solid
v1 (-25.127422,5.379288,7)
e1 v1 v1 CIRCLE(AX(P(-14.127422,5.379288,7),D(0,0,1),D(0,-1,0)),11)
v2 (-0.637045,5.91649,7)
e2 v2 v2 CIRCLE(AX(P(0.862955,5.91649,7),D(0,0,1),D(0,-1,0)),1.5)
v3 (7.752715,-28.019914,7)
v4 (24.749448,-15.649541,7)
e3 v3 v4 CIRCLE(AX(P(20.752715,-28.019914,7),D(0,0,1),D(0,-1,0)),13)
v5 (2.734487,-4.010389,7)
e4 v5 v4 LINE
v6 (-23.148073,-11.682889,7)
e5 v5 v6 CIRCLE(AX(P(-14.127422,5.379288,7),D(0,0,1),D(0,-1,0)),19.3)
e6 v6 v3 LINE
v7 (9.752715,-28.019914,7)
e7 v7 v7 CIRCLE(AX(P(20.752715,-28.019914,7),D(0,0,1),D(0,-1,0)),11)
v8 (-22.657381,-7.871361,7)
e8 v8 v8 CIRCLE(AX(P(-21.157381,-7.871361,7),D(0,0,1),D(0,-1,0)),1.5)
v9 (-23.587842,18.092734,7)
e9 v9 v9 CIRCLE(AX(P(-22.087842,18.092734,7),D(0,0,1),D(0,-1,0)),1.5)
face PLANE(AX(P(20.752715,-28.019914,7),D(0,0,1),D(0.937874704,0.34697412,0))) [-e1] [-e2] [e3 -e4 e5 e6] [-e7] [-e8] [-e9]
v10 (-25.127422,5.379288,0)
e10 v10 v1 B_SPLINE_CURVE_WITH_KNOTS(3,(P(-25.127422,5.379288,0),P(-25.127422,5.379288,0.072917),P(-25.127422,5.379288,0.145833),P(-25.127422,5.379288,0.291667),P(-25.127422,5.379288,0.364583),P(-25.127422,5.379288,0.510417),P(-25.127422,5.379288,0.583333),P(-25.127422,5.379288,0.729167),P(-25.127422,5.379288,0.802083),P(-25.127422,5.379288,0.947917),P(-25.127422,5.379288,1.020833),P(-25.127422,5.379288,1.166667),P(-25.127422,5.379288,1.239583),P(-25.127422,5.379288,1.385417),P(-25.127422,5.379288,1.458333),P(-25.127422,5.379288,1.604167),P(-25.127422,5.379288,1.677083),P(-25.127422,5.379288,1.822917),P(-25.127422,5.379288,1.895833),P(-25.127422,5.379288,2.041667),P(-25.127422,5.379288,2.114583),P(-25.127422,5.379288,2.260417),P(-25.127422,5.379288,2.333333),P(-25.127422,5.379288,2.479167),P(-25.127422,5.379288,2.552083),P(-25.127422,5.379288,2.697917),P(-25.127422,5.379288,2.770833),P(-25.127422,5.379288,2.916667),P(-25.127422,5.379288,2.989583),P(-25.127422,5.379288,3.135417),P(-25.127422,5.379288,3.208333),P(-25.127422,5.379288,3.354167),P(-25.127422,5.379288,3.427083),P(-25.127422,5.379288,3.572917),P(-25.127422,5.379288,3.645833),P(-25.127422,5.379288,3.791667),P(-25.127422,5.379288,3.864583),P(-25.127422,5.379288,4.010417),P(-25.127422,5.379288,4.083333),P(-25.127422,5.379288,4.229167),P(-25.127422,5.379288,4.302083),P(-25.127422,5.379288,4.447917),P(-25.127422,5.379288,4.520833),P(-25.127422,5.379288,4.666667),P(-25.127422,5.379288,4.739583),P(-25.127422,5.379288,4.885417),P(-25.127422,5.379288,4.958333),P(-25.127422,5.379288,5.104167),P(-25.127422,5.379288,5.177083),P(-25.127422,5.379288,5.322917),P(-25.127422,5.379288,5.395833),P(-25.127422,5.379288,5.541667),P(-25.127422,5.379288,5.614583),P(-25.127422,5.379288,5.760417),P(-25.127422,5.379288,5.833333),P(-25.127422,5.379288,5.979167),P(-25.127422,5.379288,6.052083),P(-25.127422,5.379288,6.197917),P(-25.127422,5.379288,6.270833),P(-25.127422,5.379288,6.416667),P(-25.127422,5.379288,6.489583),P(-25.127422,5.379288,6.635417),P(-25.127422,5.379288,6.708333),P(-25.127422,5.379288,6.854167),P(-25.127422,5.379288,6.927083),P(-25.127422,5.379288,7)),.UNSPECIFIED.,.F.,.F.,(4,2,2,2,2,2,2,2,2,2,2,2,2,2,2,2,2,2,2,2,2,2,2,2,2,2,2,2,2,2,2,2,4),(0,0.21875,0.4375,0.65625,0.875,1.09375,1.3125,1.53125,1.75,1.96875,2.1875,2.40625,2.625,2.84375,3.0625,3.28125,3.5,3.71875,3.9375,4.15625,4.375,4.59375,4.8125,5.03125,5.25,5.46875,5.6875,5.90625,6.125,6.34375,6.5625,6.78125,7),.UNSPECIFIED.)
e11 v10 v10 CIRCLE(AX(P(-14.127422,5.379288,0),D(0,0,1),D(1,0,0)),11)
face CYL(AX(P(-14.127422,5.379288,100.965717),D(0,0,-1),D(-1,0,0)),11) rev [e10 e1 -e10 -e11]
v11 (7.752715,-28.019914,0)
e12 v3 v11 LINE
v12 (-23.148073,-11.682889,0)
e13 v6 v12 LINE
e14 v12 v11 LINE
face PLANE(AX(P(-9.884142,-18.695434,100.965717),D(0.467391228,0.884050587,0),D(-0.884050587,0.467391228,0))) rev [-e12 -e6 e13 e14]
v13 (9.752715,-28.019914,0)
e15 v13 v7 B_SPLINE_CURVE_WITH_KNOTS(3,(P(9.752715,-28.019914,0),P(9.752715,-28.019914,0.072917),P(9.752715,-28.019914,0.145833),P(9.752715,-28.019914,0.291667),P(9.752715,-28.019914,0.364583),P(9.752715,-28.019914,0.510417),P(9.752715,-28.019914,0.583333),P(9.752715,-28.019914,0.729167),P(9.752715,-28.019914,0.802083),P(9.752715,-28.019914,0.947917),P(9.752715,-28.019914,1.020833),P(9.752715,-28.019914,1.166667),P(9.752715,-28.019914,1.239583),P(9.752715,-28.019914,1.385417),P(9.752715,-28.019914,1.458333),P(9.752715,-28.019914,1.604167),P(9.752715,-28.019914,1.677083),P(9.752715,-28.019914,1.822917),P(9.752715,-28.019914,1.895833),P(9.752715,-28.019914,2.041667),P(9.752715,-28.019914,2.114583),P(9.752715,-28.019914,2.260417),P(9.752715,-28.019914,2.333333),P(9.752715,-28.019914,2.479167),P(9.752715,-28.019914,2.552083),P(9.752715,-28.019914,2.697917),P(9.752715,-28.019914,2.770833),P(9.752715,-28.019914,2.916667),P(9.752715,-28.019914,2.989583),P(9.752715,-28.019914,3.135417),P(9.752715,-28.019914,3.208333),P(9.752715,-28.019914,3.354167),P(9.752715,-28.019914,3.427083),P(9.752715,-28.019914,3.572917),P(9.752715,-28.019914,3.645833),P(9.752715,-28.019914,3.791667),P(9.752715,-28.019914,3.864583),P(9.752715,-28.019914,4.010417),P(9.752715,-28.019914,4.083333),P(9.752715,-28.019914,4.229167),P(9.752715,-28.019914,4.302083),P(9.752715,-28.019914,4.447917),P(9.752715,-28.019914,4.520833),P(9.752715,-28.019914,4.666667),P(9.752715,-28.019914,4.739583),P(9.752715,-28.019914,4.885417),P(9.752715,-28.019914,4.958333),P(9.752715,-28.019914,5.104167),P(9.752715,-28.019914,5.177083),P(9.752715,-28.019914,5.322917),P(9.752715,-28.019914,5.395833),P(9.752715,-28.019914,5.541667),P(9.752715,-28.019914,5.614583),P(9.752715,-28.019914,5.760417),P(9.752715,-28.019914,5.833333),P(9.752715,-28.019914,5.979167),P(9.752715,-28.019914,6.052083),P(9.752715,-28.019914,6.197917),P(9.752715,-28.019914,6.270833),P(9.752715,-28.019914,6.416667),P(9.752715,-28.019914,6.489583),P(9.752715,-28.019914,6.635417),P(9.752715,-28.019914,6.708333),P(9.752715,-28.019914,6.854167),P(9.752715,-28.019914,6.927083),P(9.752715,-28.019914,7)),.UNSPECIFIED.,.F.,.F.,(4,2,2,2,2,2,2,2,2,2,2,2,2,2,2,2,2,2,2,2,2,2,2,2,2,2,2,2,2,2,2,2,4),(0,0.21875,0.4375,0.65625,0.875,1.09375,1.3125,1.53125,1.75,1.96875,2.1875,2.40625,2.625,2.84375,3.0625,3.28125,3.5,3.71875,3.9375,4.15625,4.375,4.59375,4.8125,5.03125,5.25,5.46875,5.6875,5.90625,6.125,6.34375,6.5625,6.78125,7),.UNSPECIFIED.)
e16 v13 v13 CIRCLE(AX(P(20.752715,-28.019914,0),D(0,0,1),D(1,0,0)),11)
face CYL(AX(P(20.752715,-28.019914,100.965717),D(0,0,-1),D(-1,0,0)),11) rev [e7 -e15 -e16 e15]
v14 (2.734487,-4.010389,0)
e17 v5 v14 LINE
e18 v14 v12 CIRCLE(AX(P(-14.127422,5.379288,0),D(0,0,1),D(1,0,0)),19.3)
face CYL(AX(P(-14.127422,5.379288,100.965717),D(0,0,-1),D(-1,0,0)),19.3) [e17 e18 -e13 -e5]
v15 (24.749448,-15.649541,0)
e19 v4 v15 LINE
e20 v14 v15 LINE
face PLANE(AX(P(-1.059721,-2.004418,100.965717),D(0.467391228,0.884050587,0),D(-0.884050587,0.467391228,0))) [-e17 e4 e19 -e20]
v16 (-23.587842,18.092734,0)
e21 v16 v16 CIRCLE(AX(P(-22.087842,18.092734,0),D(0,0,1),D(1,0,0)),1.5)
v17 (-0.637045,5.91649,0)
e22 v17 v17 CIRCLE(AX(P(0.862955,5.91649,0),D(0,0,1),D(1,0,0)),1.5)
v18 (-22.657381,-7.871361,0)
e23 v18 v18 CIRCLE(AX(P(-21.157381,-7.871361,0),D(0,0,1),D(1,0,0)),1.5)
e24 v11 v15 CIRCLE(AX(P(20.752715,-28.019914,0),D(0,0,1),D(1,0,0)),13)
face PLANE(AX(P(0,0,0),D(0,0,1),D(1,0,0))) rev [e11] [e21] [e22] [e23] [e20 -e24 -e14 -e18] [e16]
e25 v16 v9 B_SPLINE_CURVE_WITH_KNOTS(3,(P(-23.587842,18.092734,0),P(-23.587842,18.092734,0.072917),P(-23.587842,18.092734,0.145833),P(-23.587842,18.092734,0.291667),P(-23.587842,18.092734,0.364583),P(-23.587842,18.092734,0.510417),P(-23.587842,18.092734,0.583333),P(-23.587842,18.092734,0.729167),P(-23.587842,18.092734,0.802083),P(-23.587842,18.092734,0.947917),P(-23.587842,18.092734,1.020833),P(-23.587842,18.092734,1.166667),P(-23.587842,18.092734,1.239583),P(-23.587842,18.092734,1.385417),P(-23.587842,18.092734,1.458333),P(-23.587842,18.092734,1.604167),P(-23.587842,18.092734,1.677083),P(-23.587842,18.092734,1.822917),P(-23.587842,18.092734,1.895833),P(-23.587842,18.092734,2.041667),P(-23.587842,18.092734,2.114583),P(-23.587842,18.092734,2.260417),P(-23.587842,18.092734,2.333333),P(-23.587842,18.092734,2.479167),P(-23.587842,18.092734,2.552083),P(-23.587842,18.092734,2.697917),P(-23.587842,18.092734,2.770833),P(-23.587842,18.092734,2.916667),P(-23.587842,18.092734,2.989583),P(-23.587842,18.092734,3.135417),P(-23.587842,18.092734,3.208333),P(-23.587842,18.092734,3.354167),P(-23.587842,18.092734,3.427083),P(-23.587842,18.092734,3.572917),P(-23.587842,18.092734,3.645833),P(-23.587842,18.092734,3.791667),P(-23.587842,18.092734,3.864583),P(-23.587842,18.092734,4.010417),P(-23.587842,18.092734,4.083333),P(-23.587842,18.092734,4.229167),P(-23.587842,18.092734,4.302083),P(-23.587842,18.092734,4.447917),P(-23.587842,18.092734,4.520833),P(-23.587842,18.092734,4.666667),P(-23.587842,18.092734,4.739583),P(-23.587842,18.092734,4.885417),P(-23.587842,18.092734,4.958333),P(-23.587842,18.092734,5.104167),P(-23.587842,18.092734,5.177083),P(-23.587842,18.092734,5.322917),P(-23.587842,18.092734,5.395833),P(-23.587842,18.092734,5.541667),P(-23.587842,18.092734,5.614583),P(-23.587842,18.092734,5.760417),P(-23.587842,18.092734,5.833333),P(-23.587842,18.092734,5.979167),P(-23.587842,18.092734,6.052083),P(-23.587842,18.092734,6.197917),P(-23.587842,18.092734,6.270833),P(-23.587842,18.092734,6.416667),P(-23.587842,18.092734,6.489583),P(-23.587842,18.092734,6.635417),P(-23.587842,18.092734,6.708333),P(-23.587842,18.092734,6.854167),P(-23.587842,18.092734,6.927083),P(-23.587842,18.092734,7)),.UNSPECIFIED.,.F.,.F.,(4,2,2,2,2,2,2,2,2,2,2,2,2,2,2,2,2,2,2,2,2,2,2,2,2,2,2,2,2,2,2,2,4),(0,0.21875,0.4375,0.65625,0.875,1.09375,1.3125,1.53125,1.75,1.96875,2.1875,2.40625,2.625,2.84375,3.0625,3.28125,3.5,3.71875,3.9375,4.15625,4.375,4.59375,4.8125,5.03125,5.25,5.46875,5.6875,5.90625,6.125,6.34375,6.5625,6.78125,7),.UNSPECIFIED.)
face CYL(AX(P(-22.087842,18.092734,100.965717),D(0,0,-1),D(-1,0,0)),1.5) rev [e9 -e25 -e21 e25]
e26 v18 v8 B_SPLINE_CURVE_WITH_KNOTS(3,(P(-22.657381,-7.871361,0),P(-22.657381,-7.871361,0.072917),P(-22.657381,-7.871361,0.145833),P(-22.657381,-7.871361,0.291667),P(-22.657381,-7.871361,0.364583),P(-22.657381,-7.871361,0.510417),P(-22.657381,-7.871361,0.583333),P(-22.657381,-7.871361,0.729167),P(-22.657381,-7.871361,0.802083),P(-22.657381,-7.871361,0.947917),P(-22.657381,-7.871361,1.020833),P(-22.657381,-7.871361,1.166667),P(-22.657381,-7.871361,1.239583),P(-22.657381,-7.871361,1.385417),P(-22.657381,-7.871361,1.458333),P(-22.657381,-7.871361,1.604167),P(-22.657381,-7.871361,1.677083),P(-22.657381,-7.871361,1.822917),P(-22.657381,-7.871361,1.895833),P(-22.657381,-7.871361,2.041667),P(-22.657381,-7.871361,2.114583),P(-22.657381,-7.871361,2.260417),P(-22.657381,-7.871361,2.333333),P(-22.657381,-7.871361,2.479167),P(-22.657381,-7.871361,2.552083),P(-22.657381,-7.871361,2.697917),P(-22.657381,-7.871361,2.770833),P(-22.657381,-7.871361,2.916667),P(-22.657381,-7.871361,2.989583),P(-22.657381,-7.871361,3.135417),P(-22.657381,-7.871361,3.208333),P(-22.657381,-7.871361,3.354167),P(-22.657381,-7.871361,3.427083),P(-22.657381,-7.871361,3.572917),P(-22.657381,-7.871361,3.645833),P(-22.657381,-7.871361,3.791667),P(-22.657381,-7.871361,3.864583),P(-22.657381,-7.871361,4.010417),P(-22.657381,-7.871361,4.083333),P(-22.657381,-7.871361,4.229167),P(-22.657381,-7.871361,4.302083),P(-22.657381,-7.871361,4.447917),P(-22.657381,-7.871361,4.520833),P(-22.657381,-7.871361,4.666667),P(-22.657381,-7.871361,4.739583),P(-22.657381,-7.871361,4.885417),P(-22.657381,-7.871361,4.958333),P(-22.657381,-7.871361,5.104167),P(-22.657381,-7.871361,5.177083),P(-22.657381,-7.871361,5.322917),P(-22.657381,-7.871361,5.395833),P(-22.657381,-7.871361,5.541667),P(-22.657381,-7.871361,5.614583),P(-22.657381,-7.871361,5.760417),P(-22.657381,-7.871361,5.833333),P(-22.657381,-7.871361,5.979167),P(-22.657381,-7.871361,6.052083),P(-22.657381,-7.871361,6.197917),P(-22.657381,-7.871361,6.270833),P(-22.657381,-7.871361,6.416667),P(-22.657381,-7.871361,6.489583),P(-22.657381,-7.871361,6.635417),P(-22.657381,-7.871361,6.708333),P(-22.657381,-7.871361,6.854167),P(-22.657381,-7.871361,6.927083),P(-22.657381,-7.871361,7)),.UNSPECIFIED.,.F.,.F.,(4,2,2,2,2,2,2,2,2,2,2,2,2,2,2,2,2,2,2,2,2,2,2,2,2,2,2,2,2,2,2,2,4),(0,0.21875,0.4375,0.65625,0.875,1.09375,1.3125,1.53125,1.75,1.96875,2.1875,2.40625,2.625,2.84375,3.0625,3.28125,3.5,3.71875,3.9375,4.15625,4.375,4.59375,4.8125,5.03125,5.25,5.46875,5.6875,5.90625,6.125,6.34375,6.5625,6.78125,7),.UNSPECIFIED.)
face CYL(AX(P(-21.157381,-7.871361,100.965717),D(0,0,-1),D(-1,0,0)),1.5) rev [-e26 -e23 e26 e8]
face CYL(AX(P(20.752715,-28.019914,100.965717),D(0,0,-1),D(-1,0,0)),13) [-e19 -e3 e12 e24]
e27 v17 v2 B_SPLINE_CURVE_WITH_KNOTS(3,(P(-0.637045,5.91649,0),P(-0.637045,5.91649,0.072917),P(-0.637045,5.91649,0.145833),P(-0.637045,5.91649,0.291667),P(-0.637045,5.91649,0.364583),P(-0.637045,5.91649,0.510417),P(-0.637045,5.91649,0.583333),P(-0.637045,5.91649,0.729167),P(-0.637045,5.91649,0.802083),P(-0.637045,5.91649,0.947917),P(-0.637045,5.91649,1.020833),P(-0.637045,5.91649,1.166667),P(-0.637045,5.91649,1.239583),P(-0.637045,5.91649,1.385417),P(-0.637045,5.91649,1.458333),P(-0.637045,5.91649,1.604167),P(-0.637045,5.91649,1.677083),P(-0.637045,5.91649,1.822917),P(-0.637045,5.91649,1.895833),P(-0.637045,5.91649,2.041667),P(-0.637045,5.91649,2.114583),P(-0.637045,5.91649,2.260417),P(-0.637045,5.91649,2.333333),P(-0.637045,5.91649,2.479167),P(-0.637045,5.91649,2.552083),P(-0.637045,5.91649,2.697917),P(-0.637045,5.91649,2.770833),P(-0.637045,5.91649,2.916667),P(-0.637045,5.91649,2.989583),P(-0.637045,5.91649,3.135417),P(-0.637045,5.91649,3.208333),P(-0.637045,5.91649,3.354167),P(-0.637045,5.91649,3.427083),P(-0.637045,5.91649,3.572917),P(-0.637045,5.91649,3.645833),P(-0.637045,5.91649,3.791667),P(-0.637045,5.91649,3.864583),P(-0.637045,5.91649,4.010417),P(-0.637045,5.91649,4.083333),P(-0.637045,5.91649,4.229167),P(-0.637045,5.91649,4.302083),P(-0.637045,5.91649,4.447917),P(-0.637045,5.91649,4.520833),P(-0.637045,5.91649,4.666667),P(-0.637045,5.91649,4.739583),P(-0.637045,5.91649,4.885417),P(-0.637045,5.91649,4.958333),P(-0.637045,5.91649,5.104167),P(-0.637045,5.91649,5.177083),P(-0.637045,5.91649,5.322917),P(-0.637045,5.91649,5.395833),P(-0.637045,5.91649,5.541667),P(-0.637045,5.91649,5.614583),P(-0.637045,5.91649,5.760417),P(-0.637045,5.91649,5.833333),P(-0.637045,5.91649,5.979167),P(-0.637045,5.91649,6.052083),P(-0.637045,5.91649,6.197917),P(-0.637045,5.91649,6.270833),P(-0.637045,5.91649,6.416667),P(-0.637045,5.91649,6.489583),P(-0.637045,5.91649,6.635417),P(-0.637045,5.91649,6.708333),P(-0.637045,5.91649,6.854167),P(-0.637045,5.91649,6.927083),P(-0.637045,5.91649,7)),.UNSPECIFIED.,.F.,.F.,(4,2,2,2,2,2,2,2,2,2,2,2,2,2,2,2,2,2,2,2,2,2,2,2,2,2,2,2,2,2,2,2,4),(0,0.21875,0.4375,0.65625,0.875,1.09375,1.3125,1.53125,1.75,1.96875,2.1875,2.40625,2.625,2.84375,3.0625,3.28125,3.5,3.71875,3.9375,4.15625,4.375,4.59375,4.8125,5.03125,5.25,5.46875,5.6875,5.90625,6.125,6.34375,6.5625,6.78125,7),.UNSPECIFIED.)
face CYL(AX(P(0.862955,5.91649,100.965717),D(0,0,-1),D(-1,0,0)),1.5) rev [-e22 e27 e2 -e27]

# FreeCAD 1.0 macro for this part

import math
import FreeCAD as App
import Part
import Sketcher

doc = App.newDocument("Part")
body = doc.addObject("PartDesign::Body", "Body")

sketch1 = body.newObject("Sketcher::SketchObject", "Sketch")
sketch1.AttachmentSupport = (doc.getObject("XY_Plane"), [""])
sketch1.MapMode = "FlatFace"
sketch1.addGeometry(Part.LineSegment(App.Vector(24.7, -15.6, 0), App.Vector(2.7, -4, 0)), False)
sketch1.addGeometry(Part.ArcOfCircle(Part.Circle(App.Vector(-14.1, 5.4, 0), App.Vector(0, 0, 1), 19.3), math.radians(-29), math.radians(242)), False)
sketch1.addGeometry(Part.LineSegment(App.Vector(-23.1, -11.7, 0), App.Vector(7.8, -28, 0)), False)
sketch1.addGeometry(Part.ArcOfCircle(Part.Circle(App.Vector(20.8, -28, 0), App.Vector(0, 0, 1), 13), math.radians(180), math.radians(432)), False)
sketch1.addGeometry(Part.Circle(App.Vector(20.8, -28, 0), App.Vector(0, 0, 1), 11), False)
sketch1.addGeometry(Part.Circle(App.Vector(-21.2, -7.9, 0), App.Vector(0, 0, 1), 1.5), False)
sketch1.addGeometry(Part.Circle(App.Vector(-14.1, 5.4, 0), App.Vector(0, 0, 1), 11), False)
sketch1.addGeometry(Part.Circle(App.Vector(-22.1, 18.1, 0), App.Vector(0, 0, 1), 1.5), False)
sketch1.addGeometry(Part.Circle(App.Vector(0.9, 5.9, 0), App.Vector(0, 0, 1), 1.5), False)
sketch1.addConstraint(Sketcher.Constraint("Coincident", 0, 2, 1, 1))
sketch1.addConstraint(Sketcher.Constraint("Tangent", 1, 2, 2, 1))
sketch1.addConstraint(Sketcher.Constraint("Coincident", 2, 2, 3, 1))
sketch1.addConstraint(Sketcher.Constraint("Coincident", 3, 2, 0, 1))
sketch1.addConstraint(Sketcher.Constraint("Coincident", 4, 3, 3, 3))
sketch1.addConstraint(Sketcher.Constraint("Coincident", 6, 3, 1, 3))
sketch1.addConstraint(Sketcher.Constraint("Equal", 4, 6))
sketch1.addConstraint(Sketcher.Constraint("Equal", 5, 7))
sketch1.addConstraint(Sketcher.Constraint("Equal", 7, 8))
sketch1.addConstraint(Sketcher.Constraint("Parallel", 0, 2))
sketch1.addConstraint(Sketcher.Constraint("Horizontal", 4, 3, 2, 2))
sketch1.addConstraint(Sketcher.Constraint("Diameter", 4, 22.0))
sketch1.addConstraint(Sketcher.Constraint("Diameter", 5, 3.0))
sketch1.addConstraint(Sketcher.Constraint("Radius", 3, 13.0))
sketch1.addConstraint(Sketcher.Constraint("Radius", 1, 19.3))
sketch1.addConstraint(Sketcher.Constraint("DistanceY", 1, 3, 8, 3, 0.537202))
sketch1.addConstraint(Sketcher.Constraint("DistanceY", 1, 2, 0, 2, 7.6725))
sketch1.addConstraint(Sketcher.Constraint("DistanceX", 5, 3, -1, 1, 21.157381))
sketch1.addConstraint(Sketcher.Constraint("DistanceY", 5, 3, -1, 1, 7.871361))
sketch1.addConstraint(Sketcher.Constraint("DistanceX", 7, 3, -1, 1, 22.087842))
sketch1.addConstraint(Sketcher.Constraint("DistanceY", -1, 1, 8, 3, 5.91649))
sketch1.addConstraint(Sketcher.Constraint("DistanceY", 0, 2, -1, 1, 4.010389))
sketch1.addConstraint(Sketcher.Constraint("DistanceY", 3, 2, -1, 1, 15.649541))
sketch1.addConstraint(Sketcher.Constraint("DistanceX", 5, 3, 1, 3, 7.029958))
sketch1.addConstraint(Sketcher.Constraint("DistanceY", 3, 3, 7, 3, 46.112649))
sketch1.addConstraint(Sketcher.Constraint("DistanceX", 8, 3, 3, 3, 19.88976))
pad1 = body.newObject("PartDesign::Pad", "Pad")
pad1.Profile = sketch1
pad1.Length = 7

doc.recompute()
